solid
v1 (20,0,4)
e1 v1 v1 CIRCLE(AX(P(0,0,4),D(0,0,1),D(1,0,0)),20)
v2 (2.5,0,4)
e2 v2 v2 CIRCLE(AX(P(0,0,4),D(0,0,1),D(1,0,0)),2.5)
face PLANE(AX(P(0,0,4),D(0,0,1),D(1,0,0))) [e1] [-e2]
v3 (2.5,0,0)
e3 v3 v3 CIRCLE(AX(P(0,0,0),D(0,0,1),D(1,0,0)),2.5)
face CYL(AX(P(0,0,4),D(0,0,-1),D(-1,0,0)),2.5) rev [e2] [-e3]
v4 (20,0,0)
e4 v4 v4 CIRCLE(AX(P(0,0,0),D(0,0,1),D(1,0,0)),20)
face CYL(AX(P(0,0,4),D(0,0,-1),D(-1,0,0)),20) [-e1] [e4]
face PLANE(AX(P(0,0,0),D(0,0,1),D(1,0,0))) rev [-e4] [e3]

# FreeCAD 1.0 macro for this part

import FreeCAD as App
import Part
import Sketcher
from FreeCAD import Vector

doc = App.newDocument("Part")
body = doc.addObject("PartDesign::Body", "Body")

# Sketch on XY plane
sketch1 = body.newObject("Sketcher::SketchObject", "Sketch")
sketch1.AttachmentSupport = (doc.getObject("XY_Plane"), [""])
sketch1.MapMode = "FlatFace"
sketch1.addGeometry(Part.Circle(Vector(0, 0, 0), Vector(0, 0, 1), 20), False)
sketch1.addGeometry(Part.Circle(Vector(0, 0, 0), Vector(0, 0, 1), 2.5), False)
sketch1.addConstraint(Sketcher.Constraint("Coincident", 0, 3, -1, 1))
sketch1.addConstraint(Sketcher.Constraint("Coincident", 1, 3, -1, 1))
sketch1.addConstraint(Sketcher.Constraint("Diameter", 0, 40.0))
sketch1.addConstraint(Sketcher.Constraint("Diameter", 1, 5.0))
pad1 = body.newObject("PartDesign::Pad", "Pad")
pad1.Profile = sketch1
pad1.Length = 4

doc.recompute()
